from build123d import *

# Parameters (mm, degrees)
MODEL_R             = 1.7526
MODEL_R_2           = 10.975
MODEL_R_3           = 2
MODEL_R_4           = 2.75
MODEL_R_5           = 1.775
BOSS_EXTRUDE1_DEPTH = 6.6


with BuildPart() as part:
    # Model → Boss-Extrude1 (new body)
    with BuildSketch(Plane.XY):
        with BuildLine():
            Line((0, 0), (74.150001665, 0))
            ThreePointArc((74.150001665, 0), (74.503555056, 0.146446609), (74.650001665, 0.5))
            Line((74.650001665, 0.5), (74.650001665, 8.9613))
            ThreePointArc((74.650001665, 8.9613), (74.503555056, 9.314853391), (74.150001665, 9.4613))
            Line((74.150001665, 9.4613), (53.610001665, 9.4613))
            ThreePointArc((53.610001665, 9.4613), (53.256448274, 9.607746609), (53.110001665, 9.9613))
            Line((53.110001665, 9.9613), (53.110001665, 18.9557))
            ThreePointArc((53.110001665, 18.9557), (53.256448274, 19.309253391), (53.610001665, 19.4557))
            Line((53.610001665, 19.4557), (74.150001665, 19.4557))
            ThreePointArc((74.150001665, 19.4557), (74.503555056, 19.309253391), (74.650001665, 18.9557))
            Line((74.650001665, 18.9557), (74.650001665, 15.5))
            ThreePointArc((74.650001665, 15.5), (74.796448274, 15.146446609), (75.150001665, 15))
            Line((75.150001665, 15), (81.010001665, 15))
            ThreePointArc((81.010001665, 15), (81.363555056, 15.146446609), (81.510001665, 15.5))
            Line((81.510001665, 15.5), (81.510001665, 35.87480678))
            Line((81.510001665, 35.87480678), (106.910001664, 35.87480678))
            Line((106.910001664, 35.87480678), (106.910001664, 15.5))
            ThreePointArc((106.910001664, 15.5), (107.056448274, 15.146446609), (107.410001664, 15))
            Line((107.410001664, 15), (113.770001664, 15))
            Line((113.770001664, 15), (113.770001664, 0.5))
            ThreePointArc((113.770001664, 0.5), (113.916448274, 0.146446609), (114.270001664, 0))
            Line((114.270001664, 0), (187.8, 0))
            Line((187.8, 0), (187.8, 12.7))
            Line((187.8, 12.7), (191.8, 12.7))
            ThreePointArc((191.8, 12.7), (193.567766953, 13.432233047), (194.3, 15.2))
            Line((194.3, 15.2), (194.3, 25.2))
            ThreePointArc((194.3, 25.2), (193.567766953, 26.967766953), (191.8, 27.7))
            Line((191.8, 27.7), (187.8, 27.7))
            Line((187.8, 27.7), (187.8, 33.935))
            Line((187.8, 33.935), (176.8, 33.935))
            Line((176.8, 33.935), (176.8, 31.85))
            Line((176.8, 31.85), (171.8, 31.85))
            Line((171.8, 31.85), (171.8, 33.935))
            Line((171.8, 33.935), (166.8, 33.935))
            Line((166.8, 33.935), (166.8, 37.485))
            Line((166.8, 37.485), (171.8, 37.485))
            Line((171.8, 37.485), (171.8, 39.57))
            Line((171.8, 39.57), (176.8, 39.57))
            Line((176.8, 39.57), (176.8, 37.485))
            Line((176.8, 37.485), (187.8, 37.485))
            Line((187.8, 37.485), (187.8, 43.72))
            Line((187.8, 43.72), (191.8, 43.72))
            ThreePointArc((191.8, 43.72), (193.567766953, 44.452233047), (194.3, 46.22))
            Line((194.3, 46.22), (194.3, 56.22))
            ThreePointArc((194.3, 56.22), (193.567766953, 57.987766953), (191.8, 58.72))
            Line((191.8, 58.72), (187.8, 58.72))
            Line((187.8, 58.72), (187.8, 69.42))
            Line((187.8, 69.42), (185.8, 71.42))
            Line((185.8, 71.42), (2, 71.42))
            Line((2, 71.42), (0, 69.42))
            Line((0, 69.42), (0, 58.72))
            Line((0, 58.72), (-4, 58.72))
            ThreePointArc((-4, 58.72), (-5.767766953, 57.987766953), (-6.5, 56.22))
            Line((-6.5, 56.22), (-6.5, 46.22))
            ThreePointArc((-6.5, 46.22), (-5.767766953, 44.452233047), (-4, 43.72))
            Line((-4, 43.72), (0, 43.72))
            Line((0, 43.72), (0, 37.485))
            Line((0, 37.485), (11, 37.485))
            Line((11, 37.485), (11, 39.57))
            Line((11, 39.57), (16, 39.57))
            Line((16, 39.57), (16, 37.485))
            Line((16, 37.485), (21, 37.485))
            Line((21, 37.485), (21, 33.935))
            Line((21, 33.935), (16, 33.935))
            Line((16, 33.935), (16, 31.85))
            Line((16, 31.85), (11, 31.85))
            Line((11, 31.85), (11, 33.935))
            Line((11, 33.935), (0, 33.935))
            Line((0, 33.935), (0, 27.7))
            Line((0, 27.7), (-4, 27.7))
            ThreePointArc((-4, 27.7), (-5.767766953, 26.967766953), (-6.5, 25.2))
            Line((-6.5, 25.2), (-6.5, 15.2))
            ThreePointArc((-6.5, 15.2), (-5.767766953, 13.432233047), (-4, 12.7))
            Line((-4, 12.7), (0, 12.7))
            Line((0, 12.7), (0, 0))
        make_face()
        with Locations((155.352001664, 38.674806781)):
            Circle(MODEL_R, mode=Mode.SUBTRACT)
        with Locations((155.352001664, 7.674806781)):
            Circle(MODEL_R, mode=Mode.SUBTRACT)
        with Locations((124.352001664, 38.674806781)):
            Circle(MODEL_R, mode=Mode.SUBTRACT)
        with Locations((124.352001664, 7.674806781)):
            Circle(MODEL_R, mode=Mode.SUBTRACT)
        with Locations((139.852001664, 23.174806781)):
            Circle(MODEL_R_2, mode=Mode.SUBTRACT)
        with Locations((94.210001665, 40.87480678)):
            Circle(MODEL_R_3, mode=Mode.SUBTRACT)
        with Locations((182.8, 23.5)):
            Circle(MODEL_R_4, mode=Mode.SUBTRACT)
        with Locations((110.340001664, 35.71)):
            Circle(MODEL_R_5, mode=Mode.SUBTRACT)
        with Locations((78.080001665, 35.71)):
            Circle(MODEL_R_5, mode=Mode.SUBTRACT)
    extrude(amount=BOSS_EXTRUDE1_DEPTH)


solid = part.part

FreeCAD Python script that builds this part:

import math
import FreeCAD as App
import Part
import Sketcher

V = App.Vector
Q = App.Units.Quantity

doc = App.newDocument("Part")
body = doc.addObject("PartDesign::Body", "Body")

sketch1 = body.newObject("Sketcher::SketchObject", "Sketch")
sketch1.AttachmentSupport = (doc.getObject("XY_Plane"), [""])
sketch1.MapMode = "FlatFace"
sketch1.addGeometry(Part.LineSegment(V(0, 0, 0), V(74.15, 0, 0)), False)
sketch1.addGeometry(Part.ArcOfCircle(Part.Circle(V(74.15, 0.5, 0), V(0, 0, 1), 0.5), math.radians(-90), math.radians(0)), False)
sketch1.addGeometry(Part.LineSegment(V(74.65, 0.5, 0), V(74.65, 8.96, 0)), False)
sketch1.addGeometry(Part.ArcOfCircle(Part.Circle(V(74.15, 8.96, 0), V(0, 0, 1), 0.5), math.radians(0), math.radians(90)), False)
sketch1.addGeometry(Part.LineSegment(V(74.15, 9.46, 0), V(53.61, 9.46, 0)), False)
sketch1.addGeometry(Part.ArcOfCircle(Part.Circle(V(53.61, 9.96, 0), V(0, 0, 1), 0.5), math.radians(180), math.radians(270)), False)
sketch1.addGeometry(Part.LineSegment(V(53.11, 9.96, 0), V(53.11, 18.96, 0)), False)
sketch1.addGeometry(Part.ArcOfCircle(Part.Circle(V(53.61, 18.96, 0), V(0, 0, 1), 0.5), math.radians(90), math.radians(180)), False)
sketch1.addGeometry(Part.LineSegment(V(53.61, 19.46, 0), V(74.15, 19.46, 0)), False)
sketch1.addGeometry(Part.ArcOfCircle(Part.Circle(V(74.15, 18.96, 0), V(0, 0, 1), 0.5), math.radians(0), math.radians(90)), False)
sketch1.addGeometry(Part.LineSegment(V(74.65, 18.96, 0), V(74.65, 15.5, 0)), False)
sketch1.addGeometry(Part.ArcOfCircle(Part.Circle(V(75.15, 15.5, 0), V(0, 0, 1), 0.5), math.radians(180), math.radians(270)), False)
sketch1.addGeometry(Part.LineSegment(V(75.15, 15, 0), V(81.01, 15, 0)), False)
sketch1.addGeometry(Part.ArcOfCircle(Part.Circle(V(81.01, 15.5, 0), V(0, 0, 1), 0.5), math.radians(-90), math.radians(0)), False)
sketch1.addGeometry(Part.LineSegment(V(81.51, 15.5, 0), V(81.51, 35.87, 0)), False)
sketch1.addGeometry(Part.LineSegment(V(81.51, 35.87, 0), V(106.91, 35.87, 0)), False)
sketch1.addGeometry(Part.LineSegment(V(106.91, 35.87, 0), V(106.91, 15.5, 0)), False)
sketch1.addGeometry(Part.ArcOfCircle(Part.Circle(V(107.41, 15.5, 0), V(0, 0, 1), 0.5), math.radians(180), math.radians(270)), False)
sketch1.addGeometry(Part.LineSegment(V(107.41, 15, 0), V(113.77, 15, 0)), False)
sketch1.addGeometry(Part.LineSegment(V(113.77, 15, 0), V(113.77, 0.5, 0)), False)
sketch1.addGeometry(Part.ArcOfCircle(Part.Circle(V(114.27, 0.5, 0), V(0, 0, 1), 0.5), math.radians(180), math.radians(270)), False)
sketch1.addGeometry(Part.LineSegment(V(114.27, 0, 0), V(187.8, 0, 0)), False)
sketch1.addGeometry(Part.LineSegment(V(187.8, 0, 0), V(187.8, 12.7, 0)), False)
sketch1.addGeometry(Part.LineSegment(V(187.8, 12.7, 0), V(191.8, 12.7, 0)), False)
sketch1.addGeometry(Part.ArcOfCircle(Part.Circle(V(191.8, 15.2, 0), V(0, 0, 1), 2.5), math.radians(-90), math.radians(0)), False)
sketch1.addGeometry(Part.LineSegment(V(194.3, 15.2, 0), V(194.3, 25.2, 0)), False)
sketch1.addGeometry(Part.ArcOfCircle(Part.Circle(V(191.8, 25.2, 0), V(0, 0, 1), 2.5), math.radians(0), math.radians(90)), False)
sketch1.addGeometry(Part.LineSegment(V(191.8, 27.7, 0), V(187.8, 27.7, 0)), False)
sketch1.addGeometry(Part.LineSegment(V(187.8, 27.7, 0), V(187.8, 33.94, 0)), False)
sketch1.addGeometry(Part.LineSegment(V(187.8, 33.94, 0), V(176.8, 33.94, 0)), False)
sketch1.addGeometry(Part.LineSegment(V(176.8, 33.94, 0), V(176.8, 31.85, 0)), False)
sketch1.addGeometry(Part.LineSegment(V(176.8, 31.85, 0), V(171.8, 31.85, 0)), False)
sketch1.addGeometry(Part.LineSegment(V(171.8, 31.85, 0), V(171.8, 33.94, 0)), False)
sketch1.addGeometry(Part.LineSegment(V(171.8, 33.94, 0), V(166.8, 33.94, 0)), False)
sketch1.addGeometry(Part.LineSegment(V(166.8, 33.94, 0), V(166.8, 37.48, 0)), False)
sketch1.addGeometry(Part.LineSegment(V(166.8, 37.48, 0), V(171.8, 37.48, 0)), False)
sketch1.addGeometry(Part.LineSegment(V(171.8, 37.48, 0), V(171.8, 39.57, 0)), False)
sketch1.addGeometry(Part.LineSegment(V(171.8, 39.57, 0), V(176.8, 39.57, 0)), False)
sketch1.addGeometry(Part.LineSegment(V(176.8, 39.57, 0), V(176.8, 37.48, 0)), False)
sketch1.addGeometry(Part.LineSegment(V(176.8, 37.48, 0), V(187.8, 37.48, 0)), False)
sketch1.addGeometry(Part.LineSegment(V(187.8, 37.48, 0), V(187.8, 43.72, 0)), False)
sketch1.addGeometry(Part.LineSegment(V(187.8, 43.72, 0), V(191.8, 43.72, 0)), False)
sketch1.addGeometry(Part.ArcOfCircle(Part.Circle(V(191.8, 46.22, 0), V(0, 0, 1), 2.5), math.radians(-90), math.radians(0)), False)
sketch1.addGeometry(Part.LineSegment(V(194.3, 46.22, 0), V(194.3, 56.22, 0)), False)
sketch1.addGeometry(Part.ArcOfCircle(Part.Circle(V(191.8, 56.22, 0), V(0, 0, 1), 2.5), math.radians(0), math.radians(90)), False)
sketch1.addGeometry(Part.LineSegment(V(191.8, 58.72, 0), V(187.8, 58.72, 0)), False)
sketch1.addGeometry(Part.LineSegment(V(187.8, 58.72, 0), V(187.8, 69.42, 0)), False)
sketch1.addGeometry(Part.LineSegment(V(187.8, 69.42, 0), V(185.8, 71.42, 0)), False)
sketch1.addGeometry(Part.LineSegment(V(185.8, 71.42, 0), V(2, 71.42, 0)), False)
sketch1.addGeometry(Part.LineSegment(V(2, 71.42, 0), V(0, 69.42, 0)), False)
sketch1.addGeometry(Part.LineSegment(V(0, 69.42, 0), V(0, 58.72, 0)), False)
sketch1.addGeometry(Part.LineSegment(V(0, 58.72, 0), V(-4, 58.72, 0)), False)
sketch1.addGeometry(Part.ArcOfCircle(Part.Circle(V(-4, 56.22, 0), V(0, 0, 1), 2.5), math.radians(90), math.radians(180)), False)
sketch1.addGeometry(Part.LineSegment(V(-6.5, 56.22, 0), V(-6.5, 46.22, 0)), False)
sketch1.addGeometry(Part.ArcOfCircle(Part.Circle(V(-4, 46.22, 0), V(0, 0, 1), 2.5), math.radians(180), math.radians(270)), False)
sketch1.addGeometry(Part.LineSegment(V(-4, 43.72, 0), V(0, 43.72, 0)), False)
sketch1.addGeometry(Part.LineSegment(V(0, 43.72, 0), V(0, 37.48, 0)), False)
sketch1.addGeometry(Part.LineSegment(V(0, 37.48, 0), V(11, 37.48, 0)), False)
sketch1.addGeometry(Part.LineSegment(V(11, 37.48, 0), V(11, 39.57, 0)), False)
sketch1.addGeometry(Part.LineSegment(V(11, 39.57, 0), V(16, 39.57, 0)), False)
sketch1.addGeometry(Part.LineSegment(V(16, 39.57, 0), V(16, 37.48, 0)), False)
sketch1.addGeometry(Part.LineSegment(V(16, 37.48, 0), V(21, 37.48, 0)), False)
sketch1.addGeometry(Part.LineSegment(V(21, 37.48, 0), V(21, 33.94, 0)), False)
sketch1.addGeometry(Part.LineSegment(V(21, 33.94, 0), V(16, 33.94, 0)), False)
sketch1.addGeometry(Part.LineSegment(V(16, 33.94, 0), V(16, 31.85, 0)), False)
sketch1.addGeometry(Part.LineSegment(V(16, 31.85, 0), V(11, 31.85, 0)), False)
sketch1.addGeometry(Part.LineSegment(V(11, 31.85, 0), V(11, 33.94, 0)), False)
sketch1.addGeometry(Part.LineSegment(V(11, 33.94, 0), V(0, 33.94, 0)), False)
sketch1.addGeometry(Part.LineSegment(V(0, 33.94, 0), V(0, 27.7, 0)), False)
sketch1.addGeometry(Part.LineSegment(V(0, 27.7, 0), V(-4, 27.7, 0)), False)
sketch1.addGeometry(Part.ArcOfCircle(Part.Circle(V(-4, 25.2, 0), V(0, 0, 1), 2.5), math.radians(90), math.radians(180)), False)
sketch1.addGeometry(Part.LineSegment(V(-6.5, 25.2, 0), V(-6.5, 15.2, 0)), False)
sketch1.addGeometry(Part.ArcOfCircle(Part.Circle(V(-4, 15.2, 0), V(0, 0, 1), 2.5), math.radians(180), math.radians(270)), False)
sketch1.addGeometry(Part.LineSegment(V(-4, 12.7, 0), V(0, 12.7, 0)), False)
sketch1.addGeometry(Part.LineSegment(V(0, 12.7, 0), V(0, 0, 0)), False)
sketch1.addGeometry(Part.Circle(V(124.35, 7.67, 0), V(0, 0, 1), 1.75), False)
sketch1.addGeometry(Part.Circle(V(155.35, 7.67, 0), V(0, 0, 1), 1.75), False)
sketch1.addGeometry(Part.Circle(V(139.85, 23.17, 0), V(0, 0, 1), 10.97), False)
sketch1.addGeometry(Part.Circle(V(182.8, 23.5, 0), V(0, 0, 1), 2.75), False)
sketch1.addGeometry(Part.Circle(V(78.08, 35.71, 0), V(0, 0, 1), 1.77), False)
sketch1.addGeometry(Part.Circle(V(94.21, 40.87, 0), V(0, 0, 1), 2), False)
sketch1.addGeometry(Part.Circle(V(110.34, 35.71, 0), V(0, 0, 1), 1.77), False)
sketch1.addGeometry(Part.Circle(V(124.35, 38.67, 0), V(0, 0, 1), 1.75), False)
sketch1.addGeometry(Part.Circle(V(155.35, 38.67, 0), V(0, 0, 1), 1.75), False)
sketch1.addConstraint(Sketcher.Constraint("Tangent", 0, 2, 1, 1))
sketch1.addConstraint(Sketcher.Constraint("Tangent", 1, 2, 2, 1))
sketch1.addConstraint(Sketcher.Constraint("Tangent", 2, 2, 3, 1))
sketch1.addConstraint(Sketcher.Constraint("Tangent", 3, 2, 4, 1))
sketch1.addConstraint(Sketcher.Constraint("Tangent", 4, 2, 5, 2))
sketch1.addConstraint(Sketcher.Constraint("Tangent", 5, 1, 6, 1))
sketch1.addConstraint(Sketcher.Constraint("Tangent", 6, 2, 7, 2))
sketch1.addConstraint(Sketcher.Constraint("Tangent", 7, 1, 8, 1))
sketch1.addConstraint(Sketcher.Constraint("Tangent", 8, 2, 9, 2))
sketch1.addConstraint(Sketcher.Constraint("Tangent", 9, 1, 10, 1))
sketch1.addConstraint(Sketcher.Constraint("Tangent", 10, 2, 11, 1))
sketch1.addConstraint(Sketcher.Constraint("Tangent", 11, 2, 12, 1))
sketch1.addConstraint(Sketcher.Constraint("Tangent", 12, 2, 13, 1))
sketch1.addConstraint(Sketcher.Constraint("Tangent", 13, 2, 14, 1))
sketch1.addConstraint(Sketcher.Constraint("Coincident", 14, 2, 15, 1))
sketch1.addConstraint(Sketcher.Constraint("Coincident", 15, 2, 16, 1))
sketch1.addConstraint(Sketcher.Constraint("Tangent", 16, 2, 17, 1))
sketch1.addConstraint(Sketcher.Constraint("Tangent", 17, 2, 18, 1))
sketch1.addConstraint(Sketcher.Constraint("Coincident", 18, 2, 19, 1))
sketch1.addConstraint(Sketcher.Constraint("Tangent", 19, 2, 20, 1))
sketch1.addConstraint(Sketcher.Constraint("Tangent", 20, 2, 21, 1))
sketch1.addConstraint(Sketcher.Constraint("Coincident", 21, 2, 22, 1))
sketch1.addConstraint(Sketcher.Constraint("Coincident", 22, 2, 23, 1))
sketch1.addConstraint(Sketcher.Constraint("Tangent", 23, 2, 24, 1))
sketch1.addConstraint(Sketcher.Constraint("Tangent", 24, 2, 25, 1))
sketch1.addConstraint(Sketcher.Constraint("Tangent", 25, 2, 26, 1))
sketch1.addConstraint(Sketcher.Constraint("Tangent", 26, 2, 27, 1))
sketch1.addConstraint(Sketcher.Constraint("Coincident", 27, 2, 28, 1))
sketch1.addConstraint(Sketcher.Constraint("Coincident", 28, 2, 29, 1))
sketch1.addConstraint(Sketcher.Constraint("Coincident", 29, 2, 30, 1))
sketch1.addConstraint(Sketcher.Constraint("Coincident", 30, 2, 31, 1))
sketch1.addConstraint(Sketcher.Constraint("Coincident", 31, 2, 32, 1))
sketch1.addConstraint(Sketcher.Constraint("Coincident", 32, 2, 33, 1))
sketch1.addConstraint(Sketcher.Constraint("Coincident", 33, 2, 34, 1))
sketch1.addConstraint(Sketcher.Constraint("Coincident", 34, 2, 35, 1))
sketch1.addConstraint(Sketcher.Constraint("Coincident", 35, 2, 36, 1))
sketch1.addConstraint(Sketcher.Constraint("Coincident", 36, 2, 37, 1))
sketch1.addConstraint(Sketcher.Constraint("Coincident", 37, 2, 38, 1))
sketch1.addConstraint(Sketcher.Constraint("Coincident", 38, 2, 39, 1))
sketch1.addConstraint(Sketcher.Constraint("Coincident", 39, 2, 40, 1))
sketch1.addConstraint(Sketcher.Constraint("Coincident", 40, 2, 41, 1))
sketch1.addConstraint(Sketcher.Constraint("Tangent", 41, 2, 42, 1))
sketch1.addConstraint(Sketcher.Constraint("Tangent", 42, 2, 43, 1))
sketch1.addConstraint(Sketcher.Constraint("Tangent", 43, 2, 44, 1))
sketch1.addConstraint(Sketcher.Constraint("Tangent", 44, 2, 45, 1))
sketch1.addConstraint(Sketcher.Constraint("Coincident", 45, 2, 46, 1))
sketch1.addConstraint(Sketcher.Constraint("Coincident", 46, 2, 47, 1))
sketch1.addConstraint(Sketcher.Constraint("Coincident", 47, 2, 48, 1))
sketch1.addConstraint(Sketcher.Constraint("Coincident", 48, 2, 49, 1))
sketch1.addConstraint(Sketcher.Constraint("Coincident", 49, 2, 50, 1))
sketch1.addConstraint(Sketcher.Constraint("Coincident", 50, 2, 51, 1))
sketch1.addConstraint(Sketcher.Constraint("Tangent", 51, 2, 52, 1))
sketch1.addConstraint(Sketcher.Constraint("Tangent", 52, 2, 53, 1))
sketch1.addConstraint(Sketcher.Constraint("Tangent", 53, 2, 54, 1))
sketch1.addConstraint(Sketcher.Constraint("Tangent", 54, 2, 55, 1))
sketch1.addConstraint(Sketcher.Constraint("Coincident", 55, 2, 56, 1))
sketch1.addConstraint(Sketcher.Constraint("Coincident", 56, 2, 57, 1))
sketch1.addConstraint(Sketcher.Constraint("Coincident", 57, 2, 58, 1))
sketch1.addConstraint(Sketcher.Constraint("Coincident", 58, 2, 59, 1))
sketch1.addConstraint(Sketcher.Constraint("Coincident", 59, 2, 60, 1))
sketch1.addConstraint(Sketcher.Constraint("Coincident", 60, 2, 61, 1))
sketch1.addConstraint(Sketcher.Constraint("Coincident", 61, 2, 62, 1))
sketch1.addConstraint(Sketcher.Constraint("Coincident", 62, 2, 63, 1))
sketch1.addConstraint(Sketcher.Constraint("Coincident", 63, 2, 64, 1))
sketch1.addConstraint(Sketcher.Constraint("Coincident", 64, 2, 65, 1))
sketch1.addConstraint(Sketcher.Constraint("Coincident", 65, 2, 66, 1))
sketch1.addConstraint(Sketcher.Constraint("Coincident", 66, 2, 67, 1))
sketch1.addConstraint(Sketcher.Constraint("Coincident", 67, 2, 68, 1))
sketch1.addConstraint(Sketcher.Constraint("Coincident", 68, 2, 69, 1))
sketch1.addConstraint(Sketcher.Constraint("Tangent", 69, 2, 70, 1))
sketch1.addConstraint(Sketcher.Constraint("Tangent", 70, 2, 71, 1))
sketch1.addConstraint(Sketcher.Constraint("Tangent", 71, 2, 72, 1))
sketch1.addConstraint(Sketcher.Constraint("Tangent", 72, 2, 73, 1))
sketch1.addConstraint(Sketcher.Constraint("Coincident", 73, 2, 74, 1))
sketch1.addConstraint(Sketcher.Constraint("Coincident", 74, 2, 0, 1))
sketch1.addConstraint(Sketcher.Constraint("Horizontal", 0))
sketch1.addConstraint(Sketcher.Constraint("Vertical", 2))
sketch1.addConstraint(Sketcher.Constraint("Horizontal", 4))
sketch1.addConstraint(Sketcher.Constraint("Vertical", 6))
sketch1.addConstraint(Sketcher.Constraint("Horizontal", 8))
sketch1.addConstraint(Sketcher.Constraint("Vertical", 10))
sketch1.addConstraint(Sketcher.Constraint("Horizontal", 12))
sketch1.addConstraint(Sketcher.Constraint("Vertical", 14))
sketch1.addConstraint(Sketcher.Constraint("Horizontal", 15))
sketch1.addConstraint(Sketcher.Constraint("Vertical", 16))
sketch1.addConstraint(Sketcher.Constraint("Horizontal", 18))
sketch1.addConstraint(Sketcher.Constraint("Vertical", 19))
sketch1.addConstraint(Sketcher.Constraint("Horizontal", 21))
sketch1.addConstraint(Sketcher.Constraint("Vertical", 22))
sketch1.addConstraint(Sketcher.Constraint("Horizontal", 23))
sketch1.addConstraint(Sketcher.Constraint("Vertical", 25))
sketch1.addConstraint(Sketcher.Constraint("Horizontal", 27))
sketch1.addConstraint(Sketcher.Constraint("Vertical", 28))
sketch1.addConstraint(Sketcher.Constraint("Horizontal", 29))
sketch1.addConstraint(Sketcher.Constraint("Vertical", 30))
sketch1.addConstraint(Sketcher.Constraint("Horizontal", 31))
sketch1.addConstraint(Sketcher.Constraint("Vertical", 32))
sketch1.addConstraint(Sketcher.Constraint("Horizontal", 33))
sketch1.addConstraint(Sketcher.Constraint("Vertical", 34))
sketch1.addConstraint(Sketcher.Constraint("Horizontal", 35))
sketch1.addConstraint(Sketcher.Constraint("Vertical", 36))
sketch1.addConstraint(Sketcher.Constraint("Horizontal", 37))
sketch1.addConstraint(Sketcher.Constraint("Vertical", 38))
sketch1.addConstraint(Sketcher.Constraint("Horizontal", 39))
sketch1.addConstraint(Sketcher.Constraint("Vertical", 40))
sketch1.addConstraint(Sketcher.Constraint("Horizontal", 41))
sketch1.addConstraint(Sketcher.Constraint("Vertical", 43))
sketch1.addConstraint(Sketcher.Constraint("Horizontal", 45))
sketch1.addConstraint(Sketcher.Constraint("Vertical", 46))
sketch1.addConstraint(Sketcher.Constraint("Horizontal", 48))
sketch1.addConstraint(Sketcher.Constraint("Vertical", 50))
sketch1.addConstraint(Sketcher.Constraint("Horizontal", 51))
sketch1.addConstraint(Sketcher.Constraint("Vertical", 53))
sketch1.addConstraint(Sketcher.Constraint("Horizontal", 55))
sketch1.addConstraint(Sketcher.Constraint("Vertical", 56))
sketch1.addConstraint(Sketcher.Constraint("Horizontal", 57))
sketch1.addConstraint(Sketcher.Constraint("Vertical", 58))
sketch1.addConstraint(Sketcher.Constraint("Horizontal", 59))
sketch1.addConstraint(Sketcher.Constraint("Vertical", 60))
sketch1.addConstraint(Sketcher.Constraint("Horizontal", 61))
sketch1.addConstraint(Sketcher.Constraint("Vertical", 62))
sketch1.addConstraint(Sketcher.Constraint("Horizontal", 63))
sketch1.addConstraint(Sketcher.Constraint("Vertical", 64))
sketch1.addConstraint(Sketcher.Constraint("Horizontal", 65))
sketch1.addConstraint(Sketcher.Constraint("Vertical", 66))
sketch1.addConstraint(Sketcher.Constraint("Horizontal", 67))
sketch1.addConstraint(Sketcher.Constraint("Vertical", 68))
sketch1.addConstraint(Sketcher.Constraint("Horizontal", 69))
sketch1.addConstraint(Sketcher.Constraint("Vertical", 71))
sketch1.addConstraint(Sketcher.Constraint("Horizontal", 73))
sketch1.addConstraint(Sketcher.Constraint("Vertical", 74))
sketch1.addConstraint(Sketcher.Constraint("Coincident", 74, 2, -1, 1))
sketch1.addConstraint(Sketcher.Constraint("Equal", 1, 3))
sketch1.addConstraint(Sketcher.Constraint("Equal", 3, 5))
sketch1.addConstraint(Sketcher.Constraint("Equal", 5, 7))
sketch1.addConstraint(Sketcher.Constraint("Equal", 7, 9))
sketch1.addConstraint(Sketcher.Constraint("Equal", 9, 11))
sketch1.addConstraint(Sketcher.Constraint("Equal", 11, 13))
sketch1.addConstraint(Sketcher.Constraint("Equal", 13, 17))
sketch1.addConstraint(Sketcher.Constraint("Equal", 17, 20))
sketch1.addConstraint(Sketcher.Constraint("Equal", 24, 26))
sketch1.addConstraint(Sketcher.Constraint("Equal", 26, 42))
sketch1.addConstraint(Sketcher.Constraint("Equal", 42, 44))
sketch1.addConstraint(Sketcher.Constraint("Equal", 44, 52))
sketch1.addConstraint(Sketcher.Constraint("Equal", 52, 54))
sketch1.addConstraint(Sketcher.Constraint("Equal", 54, 70))
sketch1.addConstraint(Sketcher.Constraint("Equal", 70, 72))
sketch1.addConstraint(Sketcher.Constraint("Equal", 75, 76))
sketch1.addConstraint(Sketcher.Constraint("Equal", 79, 81))
sketch1.addConstraint(Sketcher.Constraint("Equal", 76, 82))
sketch1.addConstraint(Sketcher.Constraint("Equal", 82, 83))
sketch1.addConstraint(Sketcher.Constraint("PointOnObject", 20, 2, -1))
sketch1.addConstraint(Sketcher.Constraint("PointOnObject", 49, 2, -2))
sketch1.addConstraint(Sketcher.Constraint("PointOnObject", 55, 2, -2))
sketch1.addConstraint(Sketcher.Constraint("PointOnObject", 67, 2, -2))
sketch1.addConstraint(Sketcher.Constraint("Perpendicular", 47, 49))
sketch1.addConstraint(Sketcher.Constraint("Horizontal", 13, 3, 17, 3))
sketch1.addConstraint(Sketcher.Constraint("Horizontal", 44, 3, 52, 3))
sketch1.addConstraint(Sketcher.Constraint("Horizontal", 42, 3, 54, 3))
sketch1.addConstraint(Sketcher.Constraint("Horizontal", 26, 3, 70, 3))
sketch1.addConstraint(Sketcher.Constraint("Horizontal", 24, 3, 72, 3))
sketch1.addConstraint(Sketcher.Constraint("Horizontal", 75, 3, 76, 3))
sketch1.addConstraint(Sketcher.Constraint("Horizontal", 79, 3, 81, 3))
sketch1.addConstraint(Sketcher.Constraint("Horizontal", 82, 3, 83, 3))
sketch1.addConstraint(Sketcher.Constraint("Horizontal", 29, 2, 32, 2))
sketch1.addConstraint(Sketcher.Constraint("Horizontal", 35, 2, 38, 2))
sketch1.addConstraint(Sketcher.Constraint("Horizontal", 46, 2, 49, 2))
sketch1.addConstraint(Sketcher.Constraint("Horizontal", 39, 2, 56, 2))
sketch1.addConstraint(Sketcher.Constraint("Horizontal", 37, 2, 58, 2))
sketch1.addConstraint(Sketcher.Constraint("Horizontal", 57, 2, 60, 2))
sketch1.addConstraint(Sketcher.Constraint("Horizontal", 33, 2, 62, 2))
sketch1.addConstraint(Sketcher.Constraint("Horizontal", 31, 2, 64, 2))
sketch1.addConstraint(Sketcher.Constraint("Horizontal", 63, 2, 66, 2))
sketch1.addConstraint(Sketcher.Constraint("Vertical", 3, 3, 9, 3))
sketch1.addConstraint(Sketcher.Constraint("Vertical", 26, 3, 42, 3))
sketch1.addConstraint(Sketcher.Constraint("Vertical", 54, 3, 70, 3))
sketch1.addConstraint(Sketcher.Constraint("Vertical", 75, 3, 82, 3))
sketch1.addConstraint(Sketcher.Constraint("Vertical", 76, 3, 83, 3))
sketch1.addConstraint(Sketcher.Constraint("Vertical", 22, 2, 27, 2))
sketch1.addConstraint(Sketcher.Constraint("Vertical", 32, 2, 35, 2))
sketch1.addConstraint(Sketcher.Constraint("Vertical", 30, 2, 37, 2))
sketch1.addConstraint(Sketcher.Constraint("Vertical", 28, 2, 39, 2))
sketch1.addConstraint(Sketcher.Constraint("Vertical", 40, 2, 45, 2))
sketch1.addConstraint(Sketcher.Constraint("Vertical", 60, 2, 63, 2))
sketch1.addConstraint(Sketcher.Constraint("Vertical", 58, 2, 65, 2))
sketch1.addConstraint(Sketcher.Constraint("Equal", 31, 33))
sketch1.addConstraint(Sketcher.Constraint("Equal", 45, 51))
sketch1.addConstraint(Sketcher.Constraint("Equal", 39, 57))
sketch1.addConstraint(Sketcher.Constraint("Equal", 37, 59))
sketch1.addConstraint(Sketcher.Constraint("Equal", 59, 61))
sketch1.addConstraint(Sketcher.Constraint("Equal", 32, 36))
sketch1.addConstraint(Sketcher.Constraint("Equal", 28, 40))
sketch1.addConstraint(Sketcher.Constraint("Equal", 25, 43))
sketch1.addConstraint(Sketcher.Constraint("Equal", 47, 49))
sketch1.addConstraint(Sketcher.Constraint("Diameter", 80, Q("4 mm")))
sketch1.addConstraint(Sketcher.Constraint("Diameter", 78, Q("5.5 mm")))
sketch1.addConstraint(Sketcher.Constraint("Radius", 1, Q("0.5 mm")))
sketch1.addConstraint(Sketcher.Constraint("Radius", 24, Q("2.5 mm")))
sketch1.addConstraint(Sketcher.Constraint("Diameter", 77, Q("21.95 mm")))
sketch1.addConstraint(Sketcher.Constraint("Diameter", 79, Q("3.55 mm")))
sketch1.addConstraint(Sketcher.Constraint("DistanceX", 23, 1, 23, 2, Q("4 mm")))
sketch1.addConstraint(Sketcher.Constraint("DistanceX", 29, 2, 29, 1, Q("11 mm")))
sketch1.addConstraint(Sketcher.Constraint("DistanceX", 31, 2, 31, 1, Q("5 mm")))
sketch1.addConstraint(Sketcher.Constraint("DistanceY", 25, 1, 25, 2, Q("10 mm")))
sketch1.addConstraint(Sketcher.Constraint("DistanceX", 15, 1, 15, 2, Q("25.4 mm")))
sketch1.addConstraint(Sketcher.Constraint("DistanceX", 48, 2, 48, 1, Q("183.8 mm")))
sketch1.addConstraint(Sketcher.Constraint("DistanceY", 19, 2, 19, 1, Q("14.5 mm")))
sketch1.addConstraint(Sketcher.Constraint("DistanceY", 22, 1, 22, 2, Q("12.7 mm")))
sketch1.addConstraint(Sketcher.Constraint("DistanceY", 46, 1, 46, 2, Q("10.7 mm")))
sketch1.addConstraint(Sketcher.Constraint("DistanceX", -1, 1, 48, 2, Q("2 mm")))
sketch1.addConstraint(Sketcher.Constraint("Diameter", 75, Q("3.5052 mm")))
sketch1.addConstraint(Sketcher.Constraint("DistanceX", 0, 1, 0, 2, Q("74.150002 mm")))
sketch1.addConstraint(Sketcher.Constraint("DistanceX", 4, 2, 4, 1, Q("20.54 mm")))
sketch1.addConstraint(Sketcher.Constraint("DistanceX", 12, 1, 12, 2, Q("5.86 mm")))
sketch1.addConstraint(Sketcher.Constraint("DistanceX", 18, 1, 18, 2, Q("6.36 mm")))
sketch1.addConstraint(Sketcher.Constraint("DistanceY", 34, 1, 34, 2, Q("3.55 mm")))
sketch1.addConstraint(Sketcher.Constraint("DistanceX", -1, 1, 78, 3, Q("182.8 mm")))
sketch1.addConstraint(Sketcher.Constraint("DistanceY", -1, 1, 78, 3, Q("23.5 mm")))
sketch1.addConstraint(Sketcher.Constraint("DistanceY", 28, 1, 28, 2, Q("6.235 mm")))
sketch1.addConstraint(Sketcher.Constraint("DistanceY", 30, 2, 30, 1, Q("2.085 mm")))
sketch1.addConstraint(Sketcher.Constraint("DistanceX", -1, 1, 79, 3, Q("78.080002 mm")))
sketch1.addConstraint(Sketcher.Constraint("DistanceY", -1, 1, 79, 3, Q("35.71 mm")))
sketch1.addConstraint(Sketcher.Constraint("DistanceX", -1, 1, 80, 3, Q("94.210002 mm")))
sketch1.addConstraint(Sketcher.Constraint("DistanceX", -1, 1, 81, 3, Q("110.340002 mm")))
sketch1.addConstraint(Sketcher.Constraint("DistanceY", 2, 1, 2, 2, Q("8.4613 mm")))
sketch1.addConstraint(Sketcher.Constraint("DistanceY", 6, 1, 6, 2, Q("8.9944 mm")))
sketch1.addConstraint(Sketcher.Constraint("DistanceX", -1, 1, 75, 3, Q("124.352002 mm")))
sketch1.addConstraint(Sketcher.Constraint("DistanceX", -1, 1, 76, 3, Q("155.352002 mm")))
sketch1.addConstraint(Sketcher.Constraint("DistanceX", -1, 1, 77, 3, Q("139.852002 mm")))
sketch1.addConstraint(Sketcher.Constraint("DistanceY", 14, 1, 14, 2, Q("20.374807 mm")))
sketch1.addConstraint(Sketcher.Constraint("DistanceY", -1, 1, 75, 3, Q("7.674807 mm")))
sketch1.addConstraint(Sketcher.Constraint("DistanceY", -1, 1, 77, 3, Q("23.174807 mm")))
sketch1.addConstraint(Sketcher.Constraint("DistanceY", -1, 1, 80, 3, Q("40.874807 mm")))
sketch1.addConstraint(Sketcher.Constraint("DistanceY", -1, 1, 82, 3, Q("38.674807 mm")))
pad1 = body.newObject("PartDesign::Pad", "Pad")
pad1.Profile = sketch1
pad1.Length = 6.6

doc.recompute()
